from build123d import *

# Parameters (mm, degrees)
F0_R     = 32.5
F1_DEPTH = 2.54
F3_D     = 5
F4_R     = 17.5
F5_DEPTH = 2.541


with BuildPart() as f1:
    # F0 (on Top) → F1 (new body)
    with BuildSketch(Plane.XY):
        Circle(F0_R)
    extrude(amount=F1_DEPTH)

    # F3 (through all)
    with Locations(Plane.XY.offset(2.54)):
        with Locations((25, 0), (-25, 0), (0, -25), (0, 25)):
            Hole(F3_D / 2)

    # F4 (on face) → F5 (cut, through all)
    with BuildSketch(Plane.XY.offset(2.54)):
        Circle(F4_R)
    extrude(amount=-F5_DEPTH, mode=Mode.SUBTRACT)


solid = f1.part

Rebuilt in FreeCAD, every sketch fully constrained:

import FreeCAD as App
import Part
import Sketcher

V = App.Vector

doc = App.newDocument("Part")
body = doc.addObject("PartDesign::Body", "Body")

sketch1 = body.newObject("Sketcher::SketchObject", "Sketch")
sketch1.AttachmentSupport = (doc.getObject("XY_Plane"), [""])
sketch1.MapMode = "FlatFace"
sketch1.addGeometry(Part.Circle(V(0, 0, 0), V(0, 0, 1), 32.5), False)
sketch1.addConstraint([
    Sketcher.Constraint("Coincident", 0, 3, -1, 1),
    Sketcher.Constraint("Diameter", 0, 65.0),
])
pad1 = body.newObject("PartDesign::Pad", "Pad")
pad1.Profile = sketch1
pad1.Length = 2.54

sketch2 = body.newObject("Sketcher::SketchObject", "Sketch001")
sketch2.AttachmentSupport = (doc.getObject("XY_Plane"), [""])
sketch2.MapMode = "FlatFace"
sketch2.AttachmentOffset = App.Placement(V(0, 0, 2.54), App.Rotation())
sketch2.addGeometry([
    Part.Circle(V(25, 0, 0), V(0, 0, 1), 2.5),
    Part.Circle(V(-25, 0, 0), V(0, 0, 1), 2.5),
    Part.Circle(V(0, -25, 0), V(0, 0, 1), 2.5),
    Part.Circle(V(0, 25, 0), V(0, 0, 1), 2.5),
], False)
sketch2.addConstraint([
    Sketcher.Constraint("Equal", 0, 1),
    Sketcher.Constraint("Equal", 1, 2),
    Sketcher.Constraint("Equal", 2, 3),
    Sketcher.Constraint("Symmetric", 0, 3, 1, 3, -1, 1),
    Sketcher.Constraint("Symmetric", 2, 3, 3, 3, -1, 1),
    Sketcher.Constraint("PointOnObject", 0, 3, -1),
    Sketcher.Constraint("PointOnObject", 2, 3, -2),
    Sketcher.Constraint("Diameter", 0, 5.0),
    Sketcher.Constraint("DistanceX", -1, 1, 0, 3, 25.0),
    Sketcher.Constraint("DistanceY", 2, 3, -1, 1, 25.0),
])
doc.recompute()
hole = body.newObject("PartDesign::Hole", "Hole")
hole.Profile = sketch2
hole.ThreadType = "None"
hole.Diameter = 5
hole.DepthType = "ThroughAll"

sketch3 = body.newObject("Sketcher::SketchObject", "Sketch002")
sketch3.AttachmentSupport = (doc.getObject("XY_Plane"), [""])
sketch3.MapMode = "FlatFace"
sketch3.AttachmentOffset = App.Placement(V(0, 0, 2.54), App.Rotation())
sketch3.addGeometry(Part.Circle(V(0, 0, 0), V(0, 0, 1), 17.5), False)
sketch3.addConstraint([
    Sketcher.Constraint("Coincident", 0, 3, -1, 1),
    Sketcher.Constraint("Diameter", 0, 35.0),
])
pocket1 = body.newObject("PartDesign::Pocket", "Pocket")
pocket1.Profile = sketch3
pocket1.Type = "ThroughAll"

doc.recompute()
